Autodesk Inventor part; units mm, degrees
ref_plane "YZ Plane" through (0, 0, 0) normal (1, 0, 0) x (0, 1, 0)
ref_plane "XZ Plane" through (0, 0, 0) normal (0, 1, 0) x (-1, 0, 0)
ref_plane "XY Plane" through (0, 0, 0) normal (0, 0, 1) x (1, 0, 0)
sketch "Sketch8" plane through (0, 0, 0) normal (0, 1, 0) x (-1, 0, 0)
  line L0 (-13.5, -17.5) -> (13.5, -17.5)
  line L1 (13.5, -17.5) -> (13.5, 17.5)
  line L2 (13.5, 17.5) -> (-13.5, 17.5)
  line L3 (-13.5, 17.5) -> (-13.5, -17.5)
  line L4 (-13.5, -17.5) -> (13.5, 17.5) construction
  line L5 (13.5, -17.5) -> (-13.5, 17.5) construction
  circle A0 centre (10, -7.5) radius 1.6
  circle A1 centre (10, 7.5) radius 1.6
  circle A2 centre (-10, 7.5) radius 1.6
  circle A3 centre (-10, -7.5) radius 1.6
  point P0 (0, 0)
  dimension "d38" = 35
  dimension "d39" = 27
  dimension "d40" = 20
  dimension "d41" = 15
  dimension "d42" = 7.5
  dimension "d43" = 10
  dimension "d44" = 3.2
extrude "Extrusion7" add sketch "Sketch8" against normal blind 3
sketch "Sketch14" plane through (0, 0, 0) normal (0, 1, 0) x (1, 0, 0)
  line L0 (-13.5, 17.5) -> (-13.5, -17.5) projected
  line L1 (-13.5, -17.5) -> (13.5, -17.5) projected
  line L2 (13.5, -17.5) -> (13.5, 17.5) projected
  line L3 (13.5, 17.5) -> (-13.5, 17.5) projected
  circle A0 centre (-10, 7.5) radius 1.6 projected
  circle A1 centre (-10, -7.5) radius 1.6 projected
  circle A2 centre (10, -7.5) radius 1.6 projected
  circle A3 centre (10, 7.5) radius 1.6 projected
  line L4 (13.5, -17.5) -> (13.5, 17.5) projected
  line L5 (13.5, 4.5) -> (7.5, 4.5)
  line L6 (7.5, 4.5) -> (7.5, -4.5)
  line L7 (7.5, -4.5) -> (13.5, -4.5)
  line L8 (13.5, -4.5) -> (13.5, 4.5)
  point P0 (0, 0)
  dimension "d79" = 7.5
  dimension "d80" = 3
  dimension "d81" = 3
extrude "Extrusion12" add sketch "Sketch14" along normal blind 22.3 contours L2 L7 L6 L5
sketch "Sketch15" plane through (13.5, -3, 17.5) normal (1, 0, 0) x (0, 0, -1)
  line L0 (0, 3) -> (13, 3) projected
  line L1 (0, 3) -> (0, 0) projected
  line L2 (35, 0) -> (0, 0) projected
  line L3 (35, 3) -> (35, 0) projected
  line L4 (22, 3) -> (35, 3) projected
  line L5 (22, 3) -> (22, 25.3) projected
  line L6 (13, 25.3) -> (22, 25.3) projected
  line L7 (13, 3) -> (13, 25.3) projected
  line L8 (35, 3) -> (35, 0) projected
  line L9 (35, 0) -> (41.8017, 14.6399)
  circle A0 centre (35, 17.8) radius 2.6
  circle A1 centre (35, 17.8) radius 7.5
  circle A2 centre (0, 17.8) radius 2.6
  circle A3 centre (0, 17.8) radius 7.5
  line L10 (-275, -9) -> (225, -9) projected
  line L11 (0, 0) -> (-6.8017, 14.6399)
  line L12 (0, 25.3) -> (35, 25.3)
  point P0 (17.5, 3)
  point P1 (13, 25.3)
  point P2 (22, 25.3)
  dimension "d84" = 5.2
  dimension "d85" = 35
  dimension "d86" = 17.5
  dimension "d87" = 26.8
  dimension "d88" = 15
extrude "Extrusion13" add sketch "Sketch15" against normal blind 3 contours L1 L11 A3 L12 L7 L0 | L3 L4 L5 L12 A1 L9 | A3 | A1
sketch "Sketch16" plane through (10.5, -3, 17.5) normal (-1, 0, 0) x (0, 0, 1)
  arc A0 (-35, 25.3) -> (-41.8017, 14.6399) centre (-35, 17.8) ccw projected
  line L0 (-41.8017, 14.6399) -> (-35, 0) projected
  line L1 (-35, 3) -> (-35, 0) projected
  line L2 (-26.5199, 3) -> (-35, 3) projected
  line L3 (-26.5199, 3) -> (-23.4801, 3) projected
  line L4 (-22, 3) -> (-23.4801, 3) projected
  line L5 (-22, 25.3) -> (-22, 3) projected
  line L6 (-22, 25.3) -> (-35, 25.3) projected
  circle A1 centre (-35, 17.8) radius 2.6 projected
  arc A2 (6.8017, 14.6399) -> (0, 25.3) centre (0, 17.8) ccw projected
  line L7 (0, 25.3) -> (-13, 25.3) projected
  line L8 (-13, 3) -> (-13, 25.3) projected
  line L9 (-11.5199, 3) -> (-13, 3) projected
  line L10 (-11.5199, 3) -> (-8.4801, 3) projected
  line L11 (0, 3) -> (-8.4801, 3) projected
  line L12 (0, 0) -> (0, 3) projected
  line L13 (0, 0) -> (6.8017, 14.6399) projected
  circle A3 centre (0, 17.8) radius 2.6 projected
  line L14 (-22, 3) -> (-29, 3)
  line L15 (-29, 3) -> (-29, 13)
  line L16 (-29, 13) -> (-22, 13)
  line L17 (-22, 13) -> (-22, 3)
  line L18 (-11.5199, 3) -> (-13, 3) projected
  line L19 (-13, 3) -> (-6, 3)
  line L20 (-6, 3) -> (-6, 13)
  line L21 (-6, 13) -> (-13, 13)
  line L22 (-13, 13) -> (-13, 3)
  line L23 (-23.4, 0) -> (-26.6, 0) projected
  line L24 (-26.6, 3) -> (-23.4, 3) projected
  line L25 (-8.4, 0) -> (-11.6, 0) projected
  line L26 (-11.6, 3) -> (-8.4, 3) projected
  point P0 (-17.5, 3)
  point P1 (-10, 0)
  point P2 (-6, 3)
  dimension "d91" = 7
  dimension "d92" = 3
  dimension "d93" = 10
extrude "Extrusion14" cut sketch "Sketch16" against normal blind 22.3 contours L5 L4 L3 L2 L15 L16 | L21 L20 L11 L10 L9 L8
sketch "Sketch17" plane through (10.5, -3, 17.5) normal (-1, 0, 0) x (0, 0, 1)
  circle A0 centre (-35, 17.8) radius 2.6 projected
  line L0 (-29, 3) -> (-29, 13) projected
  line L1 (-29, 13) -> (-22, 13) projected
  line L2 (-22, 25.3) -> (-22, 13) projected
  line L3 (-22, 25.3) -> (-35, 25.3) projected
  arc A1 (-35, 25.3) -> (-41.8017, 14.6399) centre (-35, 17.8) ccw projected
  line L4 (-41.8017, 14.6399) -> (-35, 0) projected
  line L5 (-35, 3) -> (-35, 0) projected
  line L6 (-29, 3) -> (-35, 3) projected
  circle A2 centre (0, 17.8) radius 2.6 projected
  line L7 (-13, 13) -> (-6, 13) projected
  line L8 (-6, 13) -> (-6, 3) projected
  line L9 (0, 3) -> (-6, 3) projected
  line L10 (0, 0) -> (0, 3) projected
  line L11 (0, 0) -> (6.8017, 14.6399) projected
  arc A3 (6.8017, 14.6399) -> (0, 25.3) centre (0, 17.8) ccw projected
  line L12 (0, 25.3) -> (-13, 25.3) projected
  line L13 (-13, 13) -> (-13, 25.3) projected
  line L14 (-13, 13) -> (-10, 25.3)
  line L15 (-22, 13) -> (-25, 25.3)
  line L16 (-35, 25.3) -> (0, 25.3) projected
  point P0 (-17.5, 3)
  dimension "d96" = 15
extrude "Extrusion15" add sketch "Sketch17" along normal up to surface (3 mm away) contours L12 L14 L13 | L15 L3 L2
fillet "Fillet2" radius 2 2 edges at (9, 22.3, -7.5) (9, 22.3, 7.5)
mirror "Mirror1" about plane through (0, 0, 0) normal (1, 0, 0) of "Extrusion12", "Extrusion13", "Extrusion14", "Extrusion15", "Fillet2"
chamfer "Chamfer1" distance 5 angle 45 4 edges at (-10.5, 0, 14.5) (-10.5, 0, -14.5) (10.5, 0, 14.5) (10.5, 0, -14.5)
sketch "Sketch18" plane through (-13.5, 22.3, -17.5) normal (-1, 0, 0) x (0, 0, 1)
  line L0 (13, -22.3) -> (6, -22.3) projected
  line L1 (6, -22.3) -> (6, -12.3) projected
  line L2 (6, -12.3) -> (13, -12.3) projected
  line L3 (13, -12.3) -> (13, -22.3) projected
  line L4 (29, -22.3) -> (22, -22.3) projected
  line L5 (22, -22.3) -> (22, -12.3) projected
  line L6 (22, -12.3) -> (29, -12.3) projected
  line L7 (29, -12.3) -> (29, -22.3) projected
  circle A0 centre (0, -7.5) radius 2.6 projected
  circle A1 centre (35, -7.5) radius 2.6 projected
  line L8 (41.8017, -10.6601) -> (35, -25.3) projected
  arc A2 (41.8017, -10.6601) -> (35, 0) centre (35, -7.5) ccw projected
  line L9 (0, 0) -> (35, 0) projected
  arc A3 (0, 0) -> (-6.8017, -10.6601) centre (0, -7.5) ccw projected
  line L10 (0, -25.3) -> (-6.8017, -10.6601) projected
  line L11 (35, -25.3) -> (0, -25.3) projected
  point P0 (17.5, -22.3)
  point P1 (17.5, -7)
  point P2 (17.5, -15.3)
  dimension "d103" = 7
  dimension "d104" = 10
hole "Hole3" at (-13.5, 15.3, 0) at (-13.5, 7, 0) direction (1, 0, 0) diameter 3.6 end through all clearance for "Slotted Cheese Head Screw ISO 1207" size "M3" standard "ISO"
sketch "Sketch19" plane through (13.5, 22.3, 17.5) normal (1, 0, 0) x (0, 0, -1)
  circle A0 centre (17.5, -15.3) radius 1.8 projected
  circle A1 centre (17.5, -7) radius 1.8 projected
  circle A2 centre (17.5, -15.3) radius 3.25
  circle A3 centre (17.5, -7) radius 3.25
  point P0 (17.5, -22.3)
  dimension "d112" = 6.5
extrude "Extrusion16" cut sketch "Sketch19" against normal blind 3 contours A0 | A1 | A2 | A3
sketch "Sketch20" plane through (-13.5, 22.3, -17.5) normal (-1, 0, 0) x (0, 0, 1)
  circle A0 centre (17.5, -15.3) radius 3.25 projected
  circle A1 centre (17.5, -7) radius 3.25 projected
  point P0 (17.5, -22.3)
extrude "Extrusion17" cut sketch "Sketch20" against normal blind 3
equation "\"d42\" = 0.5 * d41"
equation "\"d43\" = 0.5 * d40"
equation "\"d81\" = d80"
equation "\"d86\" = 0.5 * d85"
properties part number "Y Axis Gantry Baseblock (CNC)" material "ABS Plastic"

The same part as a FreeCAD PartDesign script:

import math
import FreeCAD as App
import Part
import Sketcher

V = App.Vector


def edges_at(feature, points):
    """Names of the edges that pass closest to the given points."""
    edges = feature.Shape.Edges
    near = lambda p: min(range(len(edges)), key=lambda i: edges[i].distToShape(Part.Vertex(*p))[0])
    return sorted({f"Edge{near(p) + 1}" for p in points})


def add_polygon(sketch, points):
    """Adds a closed chain of lines whose ends are joined by coincident constraints."""
    first, n = sketch.GeometryCount, len(points)
    for a, b in zip(points, points[1:] + points[:1]):
        sketch.addGeometry(Part.LineSegment(App.Vector(*a, 0), App.Vector(*b, 0)), False)
    for i in range(n):
        sketch.addConstraint(Sketcher.Constraint("Coincident", first + i, 2, first + (i + 1) % n, 1))

doc = App.newDocument("Part")
body = doc.addObject("PartDesign::Body", "Body")

sketch1 = doc.addObject("Sketcher::SketchObject", "Sketch")
body.addObject(sketch1)
sketch1.AttachmentSupport = (doc.XZ_Plane, [""])
sketch1.MapMode = "FlatFace"
add_polygon(sketch1, [(13.5, 17.5), (13.5, -17.5), (-13.5, -17.5), (-13.5, 17.5)])
sketch1.addGeometry(Part.Circle(V(10, -7.5, 0), V(0, 0, 1), 1.6), False)
sketch1.addGeometry(Part.Circle(V(-10, -7.5, 0), V(0, 0, 1), 1.6), False)
sketch1.addGeometry(Part.Circle(V(10, 7.5, 0), V(0, 0, 1), 1.6), False)
sketch1.addGeometry(Part.Circle(V(-10, 7.5, 0), V(0, 0, 1), 1.6), False)
sketch1.addConstraint(Sketcher.Constraint("Vertical", 0))
sketch1.addConstraint(Sketcher.Constraint("Horizontal", 1))
sketch1.addConstraint(Sketcher.Constraint("Vertical", 2))
sketch1.addConstraint(Sketcher.Constraint("Horizontal", 3))
sketch1.addConstraint(Sketcher.Constraint("Equal", 4, 5))
sketch1.addConstraint(Sketcher.Constraint("Equal", 5, 6))
sketch1.addConstraint(Sketcher.Constraint("Equal", 6, 7))
sketch1.addConstraint(Sketcher.Constraint("Symmetric", 5, 3, 6, 3, -1, 1))
sketch1.addConstraint(Sketcher.Constraint("Symmetric", 4, 3, 7, 3, -1, 1))
sketch1.addConstraint(Sketcher.Constraint("Symmetric", 0, 2, 2, 2, -1, 1))
sketch1.addConstraint(Sketcher.Constraint("Symmetric", 4, 3, 5, 3, -2))
sketch1.addConstraint(Sketcher.Constraint("Diameter", 4, 3.2))
sketch1.addConstraint(Sketcher.Constraint("DistanceX", 1, 2, 1, 1, 27.0))
sketch1.addConstraint(Sketcher.Constraint("DistanceY", 0, 2, 0, 1, 35.0))
sketch1.addConstraint(Sketcher.Constraint("DistanceX", -1, 1, 4, 3, 10.0))
sketch1.addConstraint(Sketcher.Constraint("DistanceY", 4, 3, 6, 3, 15.0))
pad1 = doc.addObject("PartDesign::Pad", "Pad")
body.addObject(pad1)
pad1.Profile = sketch1
pad1.Length = 3

sketch2 = doc.addObject("Sketcher::SketchObject", "Sketch001")
body.addObject(sketch2)
sketch2.AttachmentSupport = (doc.XZ_Plane, [""])
sketch2.MapMode = "FlatFace"
add_polygon(sketch2, [(14, 4), (14, -4), (8, -4), (8, 4)])
sketch2.addConstraint(Sketcher.Constraint("Vertical", 0))
sketch2.addConstraint(Sketcher.Constraint("Horizontal", 1))
sketch2.addConstraint(Sketcher.Constraint("Vertical", 2))
sketch2.addConstraint(Sketcher.Constraint("Horizontal", 3))
sketch2.addConstraint(Sketcher.Constraint("DistanceX", -1, 1, 1, 2, 7.5))
sketch2.addConstraint(Sketcher.Constraint("DistanceX", 1, 2, 1, 1, 6.0))
sketch2.addConstraint(Sketcher.Constraint("DistanceY", 0, 2, 0, 1, 9.0))
sketch2.addConstraint(Sketcher.Constraint("DistanceY", 0, 2, -1, 1, 4.5))
pad2 = doc.addObject("PartDesign::Pad", "Pad001")
body.addObject(pad2)
pad2.Profile = sketch2
pad2.Length = 22.3
pad2.Reversed = True

sketch3 = doc.addObject("Sketcher::SketchObject", "Sketch002")
body.addObject(sketch3)
sketch3.AttachmentSupport = (doc.YZ_Plane, [""])
sketch3.MapMode = "FlatFace"
sketch3.AttachmentOffset = App.Placement(V(0, 0, 13.5), App.Rotation())
sketch3.addGeometry(Part.LineSegment(V(-3, 17.5, 0), V(0, 17.5, 0)), False)
sketch3.addGeometry(Part.LineSegment(V(0, 17.5, 0), V(0, 4.5, 0)), False)
sketch3.addGeometry(Part.LineSegment(V(0, 4.5, 0), V(22.3, 4.5, 0)), False)
sketch3.addGeometry(Part.LineSegment(V(22.3, 4.5, 0), V(22.3, 17.5, 0)), False)
sketch3.addGeometry(Part.ArcOfCircle(Part.Circle(V(14.8, 17.5, 0), V(0, 0, 1), 7.5), math.radians(0), math.radians(115)), False)
sketch3.addGeometry(Part.LineSegment(V(11.6, 24.3, 0), V(-3, 17.5, 0)), False)
sketch3.addGeometry(Part.Circle(V(14.8, 17.5, 0), V(0, 0, 1), 2.6), False)
sketch3.addGeometry(Part.LineSegment(V(0, -17.5, 0), V(-3, -17.5, 0)), False)
sketch3.addGeometry(Part.LineSegment(V(-3, -17.5, 0), V(11.6, -24.3, 0)), False)
sketch3.addGeometry(Part.ArcOfCircle(Part.Circle(V(14.8, -17.5, 0), V(0, 0, 1), 7.5), math.radians(-115), math.radians(0)), False)
sketch3.addGeometry(Part.LineSegment(V(22.3, -17.5, 0), V(22.3, -4.5, 0)), False)
sketch3.addGeometry(Part.LineSegment(V(22.3, -4.5, 0), V(0, -4.5, 0)), False)
sketch3.addGeometry(Part.LineSegment(V(0, -4.5, 0), V(0, -17.5, 0)), False)
sketch3.addGeometry(Part.Circle(V(14.8, -17.5, 0), V(0, 0, 1), 2.6), False)
sketch3.addConstraint(Sketcher.Constraint("Coincident", 0, 2, 1, 1))
sketch3.addConstraint(Sketcher.Constraint("Coincident", 1, 2, 2, 1))
sketch3.addConstraint(Sketcher.Constraint("Coincident", 2, 2, 3, 1))
sketch3.addConstraint(Sketcher.Constraint("Tangent", 3, 2, 4, 1))
sketch3.addConstraint(Sketcher.Constraint("Tangent", 4, 2, 5, 1))
sketch3.addConstraint(Sketcher.Constraint("Coincident", 5, 2, 0, 1))
sketch3.addConstraint(Sketcher.Constraint("Coincident", 7, 2, 8, 1))
sketch3.addConstraint(Sketcher.Constraint("Tangent", 8, 2, 9, 1))
sketch3.addConstraint(Sketcher.Constraint("Tangent", 9, 2, 10, 1))
sketch3.addConstraint(Sketcher.Constraint("Coincident", 10, 2, 11, 1))
sketch3.addConstraint(Sketcher.Constraint("Coincident", 11, 2, 12, 1))
sketch3.addConstraint(Sketcher.Constraint("Coincident", 12, 2, 7, 1))
sketch3.addConstraint(Sketcher.Constraint("Horizontal", 0))
sketch3.addConstraint(Sketcher.Constraint("Vertical", 1))
sketch3.addConstraint(Sketcher.Constraint("Horizontal", 2))
sketch3.addConstraint(Sketcher.Constraint("Vertical", 3))
sketch3.addConstraint(Sketcher.Constraint("Horizontal", 7))
sketch3.addConstraint(Sketcher.Constraint("Vertical", 10))
sketch3.addConstraint(Sketcher.Constraint("Horizontal", 11))
sketch3.addConstraint(Sketcher.Constraint("Vertical", 12))
sketch3.addConstraint(Sketcher.Constraint("Coincident", 6, 3, 4, 3))
sketch3.addConstraint(Sketcher.Constraint("Coincident", 13, 3, 9, 3))
sketch3.addConstraint(Sketcher.Constraint("Equal", 4, 9))
sketch3.addConstraint(Sketcher.Constraint("Equal", 6, 13))
sketch3.addConstraint(Sketcher.Constraint("Symmetric", 1, 2, 11, 2, -1, 1))
sketch3.addConstraint(Sketcher.Constraint("Symmetric", 4, 3, 9, 3, -1))
sketch3.addConstraint(Sketcher.Constraint("Symmetric", 5, 2, 7, 2, -1))
sketch3.addConstraint(Sketcher.Constraint("PointOnObject", 0, 2, -2))
sketch3.addConstraint(Sketcher.Constraint("Horizontal", 6, 3, 0, 2))
sketch3.addConstraint(Sketcher.Constraint("Diameter", 6, 5.2))
sketch3.addConstraint(Sketcher.Constraint("Radius", 4, 7.5))
sketch3.addConstraint(Sketcher.Constraint("DistanceY", 9, 3, 4, 3, 35.0))
sketch3.addConstraint(Sketcher.Constraint("DistanceX", 0, 1, 0, 2, 3.0))
sketch3.addConstraint(Sketcher.Constraint("DistanceY", 1, 2, 1, 1, 13.0))
sketch3.addConstraint(Sketcher.Constraint("DistanceX", 2, 1, 2, 2, 22.3))
pad3 = doc.addObject("PartDesign::Pad", "Pad002")
body.addObject(pad3)
pad3.Profile = sketch3
pad3.Length = 3
pad3.Reversed = True

sketch4 = doc.addObject("Sketcher::SketchObject", "Sketch003")
body.addObject(sketch4)
sketch4.AttachmentSupport = (doc.YZ_Plane, [""])
sketch4.MapMode = "FlatFace"
sketch4.AttachmentOffset = App.Placement(V(0, 0, 10.5), App.Rotation())
add_polygon(sketch4, [(0, -4), (10, -4), (10, -12), (0, -12)])
add_polygon(sketch4, [(10, 12), (10, 4), (0, 4), (0, 12)])
sketch4.addConstraint(Sketcher.Constraint("Horizontal", 0))
sketch4.addConstraint(Sketcher.Constraint("Vertical", 1))
sketch4.addConstraint(Sketcher.Constraint("Horizontal", 2))
sketch4.addConstraint(Sketcher.Constraint("Vertical", 3))
sketch4.addConstraint(Sketcher.Constraint("Vertical", 4))
sketch4.addConstraint(Sketcher.Constraint("Horizontal", 5))
sketch4.addConstraint(Sketcher.Constraint("Vertical", 6))
sketch4.addConstraint(Sketcher.Constraint("Horizontal", 7))
sketch4.addConstraint(Sketcher.Constraint("Symmetric", 3, 2, 5, 2, -1, 1))
sketch4.addConstraint(Sketcher.Constraint("Symmetric", 2, 2, 6, 2, -1))
sketch4.addConstraint(Sketcher.Constraint("Vertical", 1, 2, 4, 2))
sketch4.addConstraint(Sketcher.Constraint("DistanceX", 0, 1, 0, 2, 10.0))
sketch4.addConstraint(Sketcher.Constraint("DistanceY", 1, 2, 1, 1, 7.0))
sketch4.addConstraint(Sketcher.Constraint("DistanceY", 0, 2, 4, 2, 9.0))
pocket1 = doc.addObject("PartDesign::Pocket", "Pocket")
body.addObject(pocket1)
pocket1.Profile = sketch4
pocket1.Length = 22.3
pocket1.Reversed = True

sketch5 = doc.addObject("Sketcher::SketchObject", "Sketch004")
body.addObject(sketch5)
sketch5.AttachmentSupport = (doc.YZ_Plane, [""])
sketch5.MapMode = "FlatFace"
sketch5.AttachmentOffset = App.Placement(V(0, 0, 10.5), App.Rotation())
add_polygon(sketch5, [(22.3, 7.5), (22.3, 4.5), (10, 4.5)])
add_polygon(sketch5, [(22.3, -7.5), (10, -4.5), (22.3, -4.5)])
sketch5.addConstraint(Sketcher.Constraint("Vertical", 0))
sketch5.addConstraint(Sketcher.Constraint("Horizontal", 1))
sketch5.addConstraint(Sketcher.Constraint("Horizontal", 4))
sketch5.addConstraint(Sketcher.Constraint("Vertical", 5))
sketch5.addConstraint(Sketcher.Constraint("Symmetric", 1, 2, 3, 2, -1))
sketch5.addConstraint(Sketcher.Constraint("Symmetric", 2, 2, 5, 2, -1))
sketch5.addConstraint(Sketcher.Constraint("DistanceY", 5, 2, 2, 2, 15.0))
sketch5.addConstraint(Sketcher.Constraint("DistanceY", 0, 2, 0, 1, 3.0))
sketch5.addConstraint(Sketcher.Constraint("DistanceX", 1, 2, 1, 1, 12.3))
sketch5.addConstraint(Sketcher.Constraint("DistanceX", -1, 1, 1, 2, 10.0))
pad4 = doc.addObject("PartDesign::Pad", "Pad003")
body.addObject(pad4)
pad4.Profile = sketch5
pad4.Length = 3
pad4.Reversed = True
doc.recompute()

fillet = doc.addObject("PartDesign::Fillet", "Fillet")
body.addObject(fillet)
fillet.Base = (pad4, edges_at(pad4, [(9, 22.3, -7.5), (9, 22.3, 7.5)]))
fillet.Radius = 2
doc.recompute()

mirrored = doc.addObject("PartDesign::Mirrored", "Mirrored")
body.addObject(mirrored)
mirrored.Originals = [pad2, pad3, pocket1, pad4, fillet]
mirrored.MirrorPlane = (doc.YZ_Plane, [""])
body.Tip = mirrored
doc.recompute()

chamfer = doc.addObject("PartDesign::Chamfer", "Chamfer")
body.addObject(chamfer)
chamfer.Base = (mirrored, edges_at(mirrored, [
    (-10.5, 0, 14.5),
    (-10.5, 0, -14.5),
    (10.5, 0, 14.5),
    (10.5, 0, -14.5),
]))
chamfer.Size = 5

sketch6 = doc.addObject("Sketcher::SketchObject", "Sketch005")
body.addObject(sketch6)
sketch6.AttachmentSupport = (doc.YZ_Plane, [""])
sketch6.MapMode = "FlatFace"
sketch6.AttachmentOffset = App.Placement(V(0, 0, -13.5), App.Rotation())
sketch6.addGeometry(Part.Circle(V(15.3, 0, 0), V(0, 0, 1), 1.8), False)
sketch6.addGeometry(Part.Circle(V(7, 0, 0), V(0, 0, 1), 1.8), False)
sketch6.addConstraint(Sketcher.Constraint("Equal", 0, 1))
sketch6.addConstraint(Sketcher.Constraint("PointOnObject", 0, 3, -1))
sketch6.addConstraint(Sketcher.Constraint("PointOnObject", 1, 3, -1))
sketch6.addConstraint(Sketcher.Constraint("Diameter", 0, 3.6))
sketch6.addConstraint(Sketcher.Constraint("DistanceX", -1, 1, 1, 3, 7.0))
sketch6.addConstraint(Sketcher.Constraint("DistanceX", -1, 1, 0, 3, 15.3))
doc.recompute()
hole = doc.addObject("PartDesign::Hole", "Hole")
body.addObject(hole)
hole.Profile = sketch6
hole.ThreadType = "None"
hole.Diameter = 3.6
hole.DepthType = "ThroughAll"
hole.Reversed = True

sketch7 = doc.addObject("Sketcher::SketchObject", "Sketch006")
body.addObject(sketch7)
sketch7.AttachmentSupport = (doc.YZ_Plane, [""])
sketch7.MapMode = "FlatFace"
sketch7.AttachmentOffset = App.Placement(V(0, 0, 13.5), App.Rotation())
sketch7.addGeometry(Part.Circle(V(7, 0, 0), V(0, 0, 1), 3.2), False)
sketch7.addGeometry(Part.Circle(V(15.3, 0, 0), V(0, 0, 1), 3.2), False)
sketch7.addConstraint(Sketcher.Constraint("Equal", 0, 1))
sketch7.addConstraint(Sketcher.Constraint("PointOnObject", 0, 3, -1))
sketch7.addConstraint(Sketcher.Constraint("PointOnObject", 1, 3, -1))
sketch7.addConstraint(Sketcher.Constraint("Diameter", 0, 6.5))
sketch7.addConstraint(Sketcher.Constraint("DistanceX", -1, 1, 0, 3, 7.0))
sketch7.addConstraint(Sketcher.Constraint("DistanceX", -1, 1, 1, 3, 15.3))
pocket2 = doc.addObject("PartDesign::Pocket", "Pocket001")
body.addObject(pocket2)
pocket2.Profile = sketch7
pocket2.Length = 3

sketch8 = doc.addObject("Sketcher::SketchObject", "Sketch007")
body.addObject(sketch8)
sketch8.AttachmentSupport = (doc.YZ_Plane, [""])
sketch8.MapMode = "FlatFace"
sketch8.AttachmentOffset = App.Placement(V(0, 0, -13.5), App.Rotation())
sketch8.addGeometry(Part.Circle(V(7, 0, 0), V(0, 0, 1), 3.2), False)
sketch8.addGeometry(Part.Circle(V(15.3, 0, 0), V(0, 0, 1), 3.2), False)
sketch8.addConstraint(Sketcher.Constraint("Equal", 0, 1))
sketch8.addConstraint(Sketcher.Constraint("PointOnObject", 0, 3, -1))
sketch8.addConstraint(Sketcher.Constraint("PointOnObject", 1, 3, -1))
sketch8.addConstraint(Sketcher.Constraint("Diameter", 0, 6.5))
sketch8.addConstraint(Sketcher.Constraint("DistanceX", -1, 1, 0, 3, 7.0))
sketch8.addConstraint(Sketcher.Constraint("DistanceX", -1, 1, 1, 3, 15.3))
pocket3 = doc.addObject("PartDesign::Pocket", "Pocket002")
body.addObject(pocket3)
pocket3.Profile = sketch8
pocket3.Length = 3
pocket3.Reversed = True

doc.recompute()
